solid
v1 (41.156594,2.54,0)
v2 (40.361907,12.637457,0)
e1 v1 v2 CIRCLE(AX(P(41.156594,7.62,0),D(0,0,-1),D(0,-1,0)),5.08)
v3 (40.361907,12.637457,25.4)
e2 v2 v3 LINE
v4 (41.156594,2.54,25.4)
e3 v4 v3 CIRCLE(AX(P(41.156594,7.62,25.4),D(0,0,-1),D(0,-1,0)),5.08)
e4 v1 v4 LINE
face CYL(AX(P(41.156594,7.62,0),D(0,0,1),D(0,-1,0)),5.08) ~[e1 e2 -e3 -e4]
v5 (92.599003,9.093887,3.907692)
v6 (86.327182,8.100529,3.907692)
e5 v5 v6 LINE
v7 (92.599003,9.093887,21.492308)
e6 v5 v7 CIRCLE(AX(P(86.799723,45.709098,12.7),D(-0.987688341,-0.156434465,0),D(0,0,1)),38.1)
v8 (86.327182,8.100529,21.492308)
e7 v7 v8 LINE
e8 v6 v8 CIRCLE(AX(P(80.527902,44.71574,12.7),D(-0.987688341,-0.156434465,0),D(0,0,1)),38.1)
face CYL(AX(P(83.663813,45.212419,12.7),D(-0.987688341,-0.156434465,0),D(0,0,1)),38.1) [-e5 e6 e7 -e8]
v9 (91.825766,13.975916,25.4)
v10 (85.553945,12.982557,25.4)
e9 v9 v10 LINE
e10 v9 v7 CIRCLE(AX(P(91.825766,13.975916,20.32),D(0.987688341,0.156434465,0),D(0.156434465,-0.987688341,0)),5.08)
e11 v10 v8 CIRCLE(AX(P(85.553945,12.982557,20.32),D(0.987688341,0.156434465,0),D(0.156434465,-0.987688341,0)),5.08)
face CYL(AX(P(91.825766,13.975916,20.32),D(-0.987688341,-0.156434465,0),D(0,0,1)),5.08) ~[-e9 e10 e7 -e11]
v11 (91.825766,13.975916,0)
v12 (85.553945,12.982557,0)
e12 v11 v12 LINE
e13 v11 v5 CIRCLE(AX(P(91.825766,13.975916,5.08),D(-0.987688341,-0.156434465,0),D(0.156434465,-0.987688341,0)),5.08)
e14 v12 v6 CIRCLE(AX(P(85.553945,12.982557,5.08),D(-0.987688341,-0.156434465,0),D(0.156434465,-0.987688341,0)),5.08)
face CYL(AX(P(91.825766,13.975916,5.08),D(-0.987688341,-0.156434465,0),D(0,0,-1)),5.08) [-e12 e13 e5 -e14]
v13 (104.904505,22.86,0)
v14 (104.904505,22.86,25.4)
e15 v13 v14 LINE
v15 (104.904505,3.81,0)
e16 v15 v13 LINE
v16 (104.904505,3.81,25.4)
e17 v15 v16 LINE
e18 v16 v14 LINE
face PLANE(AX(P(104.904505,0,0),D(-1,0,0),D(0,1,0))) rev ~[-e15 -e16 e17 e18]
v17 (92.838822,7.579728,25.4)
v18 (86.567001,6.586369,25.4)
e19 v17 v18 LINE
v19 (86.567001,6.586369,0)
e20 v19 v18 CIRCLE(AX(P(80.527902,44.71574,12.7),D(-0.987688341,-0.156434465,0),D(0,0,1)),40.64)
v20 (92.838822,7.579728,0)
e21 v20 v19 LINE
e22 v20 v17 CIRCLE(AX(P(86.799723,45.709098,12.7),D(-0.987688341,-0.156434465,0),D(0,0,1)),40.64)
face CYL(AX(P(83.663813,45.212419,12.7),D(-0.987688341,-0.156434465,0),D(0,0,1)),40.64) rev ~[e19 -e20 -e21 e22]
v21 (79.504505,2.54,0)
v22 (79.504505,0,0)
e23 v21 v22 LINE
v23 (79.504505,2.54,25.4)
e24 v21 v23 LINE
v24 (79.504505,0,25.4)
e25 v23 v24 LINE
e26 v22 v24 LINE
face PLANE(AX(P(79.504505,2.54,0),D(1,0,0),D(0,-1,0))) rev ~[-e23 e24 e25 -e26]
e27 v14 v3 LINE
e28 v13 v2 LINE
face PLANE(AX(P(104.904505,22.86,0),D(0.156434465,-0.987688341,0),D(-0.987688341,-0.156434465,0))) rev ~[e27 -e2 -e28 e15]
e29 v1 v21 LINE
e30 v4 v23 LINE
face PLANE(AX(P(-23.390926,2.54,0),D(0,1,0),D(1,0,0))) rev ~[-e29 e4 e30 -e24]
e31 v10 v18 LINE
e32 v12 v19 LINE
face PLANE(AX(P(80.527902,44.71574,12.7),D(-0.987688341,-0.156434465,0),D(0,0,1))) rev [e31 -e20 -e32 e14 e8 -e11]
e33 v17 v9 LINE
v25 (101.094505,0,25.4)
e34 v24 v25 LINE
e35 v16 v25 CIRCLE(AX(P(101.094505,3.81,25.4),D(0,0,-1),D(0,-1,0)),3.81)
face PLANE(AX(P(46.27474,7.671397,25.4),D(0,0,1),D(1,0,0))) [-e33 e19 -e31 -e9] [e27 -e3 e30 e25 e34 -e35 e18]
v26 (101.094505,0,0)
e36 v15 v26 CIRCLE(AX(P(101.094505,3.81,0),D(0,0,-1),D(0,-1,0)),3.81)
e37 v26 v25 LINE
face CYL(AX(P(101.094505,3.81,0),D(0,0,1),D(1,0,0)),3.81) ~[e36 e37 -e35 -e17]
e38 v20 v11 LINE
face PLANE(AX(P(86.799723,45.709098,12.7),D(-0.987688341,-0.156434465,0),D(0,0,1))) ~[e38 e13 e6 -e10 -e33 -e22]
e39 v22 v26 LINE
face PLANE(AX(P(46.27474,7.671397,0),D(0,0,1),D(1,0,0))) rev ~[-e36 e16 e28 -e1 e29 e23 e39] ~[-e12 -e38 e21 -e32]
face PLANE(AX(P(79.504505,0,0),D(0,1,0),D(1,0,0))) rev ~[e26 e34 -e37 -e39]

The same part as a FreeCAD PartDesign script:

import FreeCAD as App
import Part
import Sketcher

V = App.Vector
Q = App.Units.Quantity


def edges_at(feature, points):
    """Names of the edges that pass closest to the given points."""
    edges = feature.Shape.Edges
    near = lambda p: min(range(len(edges)), key=lambda i: edges[i].distToShape(Part.Vertex(*p))[0])
    return sorted({f"Edge{near(p) + 1}" for p in points})

doc = App.newDocument("Part")
params = doc.addObject("Spreadsheet::Sheet", "Params")
for row, (alias, value) in enumerate([
    ("sketch1_width", "1 in"),
    ("sketch1_height", "0.9 in"),
    ("sketch1_height2", "0.1 in"),
    ("pad1_length", "1 in"),
    ("fillet_radius", "0.15 in"),
    ("sketch2_height", "0.1 in"),
    ("sketch2_width", "0.25 in"),
    ("groove_angle", "360 deg"),
    ("fillet2_radius", "0.2 in"),
    ("fillet3_radius", "0.2 in"),
], start=1):
    params.set(f"A{row}", alias)
    params.set(f"B{row}", "=" + value)
    params.setAlias(f"B{row}", alias)

body = doc.addObject("PartDesign::Body", "Body")

# Sketch on XY plane
sketch1 = body.newObject("Sketcher::SketchObject", "Sketch")
sketch1.AttachmentSupport = (doc.getObject("XY_Plane"), [""])
sketch1.MapMode = "FlatFace"
sketch1.addGeometry([
    Part.LineSegment(V(104.9, 0, 0), V(104.9, 22.9, 0)),  # 0
    Part.LineSegment(V(104.9, 22.9, 0), V(-23.4, 2.5, 0)),  # 1
    Part.LineSegment(V(-23.4, 2.5, 0), V(79.5, 2.5, 0)),  # 2
    Part.LineSegment(V(79.5, 2.5, 0), V(79.5, 0, 0)),  # 3
    Part.LineSegment(V(79.5, 0, 0), V(104.9, 0, 0)),  # 4
], False)
sketch1.addConstraint([
    Sketcher.Constraint("Coincident", 0, 2, 1, 1),
    Sketcher.Constraint("Coincident", 1, 2, 2, 1),
    Sketcher.Constraint("Coincident", 2, 2, 3, 1),
    Sketcher.Constraint("Coincident", 3, 2, 4, 1),
    Sketcher.Constraint("Coincident", 4, 2, 0, 1),
    Sketcher.Constraint("Vertical", 0),
    Sketcher.Constraint("Horizontal", 2),
    Sketcher.Constraint("Vertical", 3),
    Sketcher.Constraint("Horizontal", 4),
    Sketcher.Constraint("PointOnObject", 3, 2, -1),
    Sketcher.Constraint("DistanceX", 4, 1, 4, 2, Q("1 in")),
    Sketcher.Constraint("DistanceY", 0, 1, 0, 2, Q("0.9 in")),
    Sketcher.Constraint("DistanceY", 3, 2, 3, 1, Q("0.1 in")),
    Sketcher.Constraint("Angle", 1, Q("-171 deg")),
    Sketcher.Constraint("DistanceX", -1, 1, 0, 2, 104.904505),
])
sketch1.setExpression("Constraints[10]", "Params.sketch1_width")
sketch1.setExpression("Constraints[11]", "Params.sketch1_height")
sketch1.setExpression("Constraints[12]", "Params.sketch1_height2")
pad1 = body.newObject("PartDesign::Pad", "Pad")
pad1.Profile = sketch1
pad1.setExpression("Length", "Params.pad1_length")
doc.recompute()

fillet = body.newObject("PartDesign::Fillet", "Fillet")
fillet.Base = (pad1, edges_at(pad1, [(104.905, 0, 12.7)]))
fillet.setExpression("Radius", "Params.fillet_radius")

# Sketch on an angled plane
sketch2 = body.newObject("Sketcher::SketchObject", "Sketch001")
sketch2.Placement = App.Placement(V(-4.938304, 31.179222, 0), App.Rotation(V(-0.987688341, -0.156434465, 0), V(0, 0, 1.000000001), V(-0.156434465, 0.987688341, 0), "ZXY"))
sketch2.addGeometry([
    Part.LineSegment(V(-92.9, 53.3, 0), V(-92.9, 50.8, 0)),
    Part.LineSegment(V(-92.9, 50.8, 0), V(-86.5, 50.8, 0)),
    Part.LineSegment(V(-86.5, 50.8, 0), V(-86.5, 53.3, 0)),
    Part.LineSegment(V(-86.5, 53.3, 0), V(-92.9, 53.3, 0)),
], False)
sketch2.addGeometry(Part.LineSegment(V(-92.9, 12.7, 0), V(-86.5, 12.7, 0)), True)  # axis
sketch2.addConstraint([
    Sketcher.Constraint("Coincident", 0, 2, 1, 1),
    Sketcher.Constraint("Coincident", 1, 2, 2, 1),
    Sketcher.Constraint("Coincident", 2, 2, 3, 1),
    Sketcher.Constraint("Coincident", 3, 2, 0, 1),
    Sketcher.Constraint("Vertical", 0),
    Sketcher.Constraint("Horizontal", 1),
    Sketcher.Constraint("Vertical", 2),
    Sketcher.Constraint("Horizontal", 3),
    Sketcher.Constraint("Horizontal", 4),
    Sketcher.Constraint("Vertical", 3, 2, 4, 1),
    Sketcher.Constraint("Vertical", 2, 2, 4, 2),
    Sketcher.Constraint("DistanceY", 0, 2, 0, 1, Q("0.1 in")),
    Sketcher.Constraint("DistanceY", -1, 1, 0, 2, Q("2 in")),
    Sketcher.Constraint("DistanceX", 1, 1, 1, 2, Q("0.25 in")),
    Sketcher.Constraint("DistanceY", -1, 1, 4, 1, Q("0.5 in")),
    Sketcher.Constraint("DistanceX", 0, 2, -1, 1, 92.881553),
])
sketch2.setExpression("Constraints[11]", "Params.sketch2_height")
sketch2.setExpression("Constraints[13]", "Params.sketch2_width")
groove = body.newObject("PartDesign::Groove", "Groove")
groove.Profile = sketch2
groove.ReferenceAxis = (sketch2, ["Axis0"])
groove.setExpression("Angle", "Params.groove_angle")
doc.recompute()

fillet2 = body.newObject("PartDesign::Fillet", "Fillet001")
fillet2.Base = (groove, edges_at(groove, [(89.283, 9.734, 25.4), (89.283, 9.734, 0)]))
fillet2.setExpression("Radius", "Params.fillet2_radius")
doc.recompute()

fillet3 = body.newObject("PartDesign::Fillet", "Fillet002")
fillet3.Base = (fillet2, edges_at(fillet2, [(-23.391, 2.54, 12.7)]))
fillet3.setExpression("Radius", "Params.fillet3_radius")

doc.recompute()
